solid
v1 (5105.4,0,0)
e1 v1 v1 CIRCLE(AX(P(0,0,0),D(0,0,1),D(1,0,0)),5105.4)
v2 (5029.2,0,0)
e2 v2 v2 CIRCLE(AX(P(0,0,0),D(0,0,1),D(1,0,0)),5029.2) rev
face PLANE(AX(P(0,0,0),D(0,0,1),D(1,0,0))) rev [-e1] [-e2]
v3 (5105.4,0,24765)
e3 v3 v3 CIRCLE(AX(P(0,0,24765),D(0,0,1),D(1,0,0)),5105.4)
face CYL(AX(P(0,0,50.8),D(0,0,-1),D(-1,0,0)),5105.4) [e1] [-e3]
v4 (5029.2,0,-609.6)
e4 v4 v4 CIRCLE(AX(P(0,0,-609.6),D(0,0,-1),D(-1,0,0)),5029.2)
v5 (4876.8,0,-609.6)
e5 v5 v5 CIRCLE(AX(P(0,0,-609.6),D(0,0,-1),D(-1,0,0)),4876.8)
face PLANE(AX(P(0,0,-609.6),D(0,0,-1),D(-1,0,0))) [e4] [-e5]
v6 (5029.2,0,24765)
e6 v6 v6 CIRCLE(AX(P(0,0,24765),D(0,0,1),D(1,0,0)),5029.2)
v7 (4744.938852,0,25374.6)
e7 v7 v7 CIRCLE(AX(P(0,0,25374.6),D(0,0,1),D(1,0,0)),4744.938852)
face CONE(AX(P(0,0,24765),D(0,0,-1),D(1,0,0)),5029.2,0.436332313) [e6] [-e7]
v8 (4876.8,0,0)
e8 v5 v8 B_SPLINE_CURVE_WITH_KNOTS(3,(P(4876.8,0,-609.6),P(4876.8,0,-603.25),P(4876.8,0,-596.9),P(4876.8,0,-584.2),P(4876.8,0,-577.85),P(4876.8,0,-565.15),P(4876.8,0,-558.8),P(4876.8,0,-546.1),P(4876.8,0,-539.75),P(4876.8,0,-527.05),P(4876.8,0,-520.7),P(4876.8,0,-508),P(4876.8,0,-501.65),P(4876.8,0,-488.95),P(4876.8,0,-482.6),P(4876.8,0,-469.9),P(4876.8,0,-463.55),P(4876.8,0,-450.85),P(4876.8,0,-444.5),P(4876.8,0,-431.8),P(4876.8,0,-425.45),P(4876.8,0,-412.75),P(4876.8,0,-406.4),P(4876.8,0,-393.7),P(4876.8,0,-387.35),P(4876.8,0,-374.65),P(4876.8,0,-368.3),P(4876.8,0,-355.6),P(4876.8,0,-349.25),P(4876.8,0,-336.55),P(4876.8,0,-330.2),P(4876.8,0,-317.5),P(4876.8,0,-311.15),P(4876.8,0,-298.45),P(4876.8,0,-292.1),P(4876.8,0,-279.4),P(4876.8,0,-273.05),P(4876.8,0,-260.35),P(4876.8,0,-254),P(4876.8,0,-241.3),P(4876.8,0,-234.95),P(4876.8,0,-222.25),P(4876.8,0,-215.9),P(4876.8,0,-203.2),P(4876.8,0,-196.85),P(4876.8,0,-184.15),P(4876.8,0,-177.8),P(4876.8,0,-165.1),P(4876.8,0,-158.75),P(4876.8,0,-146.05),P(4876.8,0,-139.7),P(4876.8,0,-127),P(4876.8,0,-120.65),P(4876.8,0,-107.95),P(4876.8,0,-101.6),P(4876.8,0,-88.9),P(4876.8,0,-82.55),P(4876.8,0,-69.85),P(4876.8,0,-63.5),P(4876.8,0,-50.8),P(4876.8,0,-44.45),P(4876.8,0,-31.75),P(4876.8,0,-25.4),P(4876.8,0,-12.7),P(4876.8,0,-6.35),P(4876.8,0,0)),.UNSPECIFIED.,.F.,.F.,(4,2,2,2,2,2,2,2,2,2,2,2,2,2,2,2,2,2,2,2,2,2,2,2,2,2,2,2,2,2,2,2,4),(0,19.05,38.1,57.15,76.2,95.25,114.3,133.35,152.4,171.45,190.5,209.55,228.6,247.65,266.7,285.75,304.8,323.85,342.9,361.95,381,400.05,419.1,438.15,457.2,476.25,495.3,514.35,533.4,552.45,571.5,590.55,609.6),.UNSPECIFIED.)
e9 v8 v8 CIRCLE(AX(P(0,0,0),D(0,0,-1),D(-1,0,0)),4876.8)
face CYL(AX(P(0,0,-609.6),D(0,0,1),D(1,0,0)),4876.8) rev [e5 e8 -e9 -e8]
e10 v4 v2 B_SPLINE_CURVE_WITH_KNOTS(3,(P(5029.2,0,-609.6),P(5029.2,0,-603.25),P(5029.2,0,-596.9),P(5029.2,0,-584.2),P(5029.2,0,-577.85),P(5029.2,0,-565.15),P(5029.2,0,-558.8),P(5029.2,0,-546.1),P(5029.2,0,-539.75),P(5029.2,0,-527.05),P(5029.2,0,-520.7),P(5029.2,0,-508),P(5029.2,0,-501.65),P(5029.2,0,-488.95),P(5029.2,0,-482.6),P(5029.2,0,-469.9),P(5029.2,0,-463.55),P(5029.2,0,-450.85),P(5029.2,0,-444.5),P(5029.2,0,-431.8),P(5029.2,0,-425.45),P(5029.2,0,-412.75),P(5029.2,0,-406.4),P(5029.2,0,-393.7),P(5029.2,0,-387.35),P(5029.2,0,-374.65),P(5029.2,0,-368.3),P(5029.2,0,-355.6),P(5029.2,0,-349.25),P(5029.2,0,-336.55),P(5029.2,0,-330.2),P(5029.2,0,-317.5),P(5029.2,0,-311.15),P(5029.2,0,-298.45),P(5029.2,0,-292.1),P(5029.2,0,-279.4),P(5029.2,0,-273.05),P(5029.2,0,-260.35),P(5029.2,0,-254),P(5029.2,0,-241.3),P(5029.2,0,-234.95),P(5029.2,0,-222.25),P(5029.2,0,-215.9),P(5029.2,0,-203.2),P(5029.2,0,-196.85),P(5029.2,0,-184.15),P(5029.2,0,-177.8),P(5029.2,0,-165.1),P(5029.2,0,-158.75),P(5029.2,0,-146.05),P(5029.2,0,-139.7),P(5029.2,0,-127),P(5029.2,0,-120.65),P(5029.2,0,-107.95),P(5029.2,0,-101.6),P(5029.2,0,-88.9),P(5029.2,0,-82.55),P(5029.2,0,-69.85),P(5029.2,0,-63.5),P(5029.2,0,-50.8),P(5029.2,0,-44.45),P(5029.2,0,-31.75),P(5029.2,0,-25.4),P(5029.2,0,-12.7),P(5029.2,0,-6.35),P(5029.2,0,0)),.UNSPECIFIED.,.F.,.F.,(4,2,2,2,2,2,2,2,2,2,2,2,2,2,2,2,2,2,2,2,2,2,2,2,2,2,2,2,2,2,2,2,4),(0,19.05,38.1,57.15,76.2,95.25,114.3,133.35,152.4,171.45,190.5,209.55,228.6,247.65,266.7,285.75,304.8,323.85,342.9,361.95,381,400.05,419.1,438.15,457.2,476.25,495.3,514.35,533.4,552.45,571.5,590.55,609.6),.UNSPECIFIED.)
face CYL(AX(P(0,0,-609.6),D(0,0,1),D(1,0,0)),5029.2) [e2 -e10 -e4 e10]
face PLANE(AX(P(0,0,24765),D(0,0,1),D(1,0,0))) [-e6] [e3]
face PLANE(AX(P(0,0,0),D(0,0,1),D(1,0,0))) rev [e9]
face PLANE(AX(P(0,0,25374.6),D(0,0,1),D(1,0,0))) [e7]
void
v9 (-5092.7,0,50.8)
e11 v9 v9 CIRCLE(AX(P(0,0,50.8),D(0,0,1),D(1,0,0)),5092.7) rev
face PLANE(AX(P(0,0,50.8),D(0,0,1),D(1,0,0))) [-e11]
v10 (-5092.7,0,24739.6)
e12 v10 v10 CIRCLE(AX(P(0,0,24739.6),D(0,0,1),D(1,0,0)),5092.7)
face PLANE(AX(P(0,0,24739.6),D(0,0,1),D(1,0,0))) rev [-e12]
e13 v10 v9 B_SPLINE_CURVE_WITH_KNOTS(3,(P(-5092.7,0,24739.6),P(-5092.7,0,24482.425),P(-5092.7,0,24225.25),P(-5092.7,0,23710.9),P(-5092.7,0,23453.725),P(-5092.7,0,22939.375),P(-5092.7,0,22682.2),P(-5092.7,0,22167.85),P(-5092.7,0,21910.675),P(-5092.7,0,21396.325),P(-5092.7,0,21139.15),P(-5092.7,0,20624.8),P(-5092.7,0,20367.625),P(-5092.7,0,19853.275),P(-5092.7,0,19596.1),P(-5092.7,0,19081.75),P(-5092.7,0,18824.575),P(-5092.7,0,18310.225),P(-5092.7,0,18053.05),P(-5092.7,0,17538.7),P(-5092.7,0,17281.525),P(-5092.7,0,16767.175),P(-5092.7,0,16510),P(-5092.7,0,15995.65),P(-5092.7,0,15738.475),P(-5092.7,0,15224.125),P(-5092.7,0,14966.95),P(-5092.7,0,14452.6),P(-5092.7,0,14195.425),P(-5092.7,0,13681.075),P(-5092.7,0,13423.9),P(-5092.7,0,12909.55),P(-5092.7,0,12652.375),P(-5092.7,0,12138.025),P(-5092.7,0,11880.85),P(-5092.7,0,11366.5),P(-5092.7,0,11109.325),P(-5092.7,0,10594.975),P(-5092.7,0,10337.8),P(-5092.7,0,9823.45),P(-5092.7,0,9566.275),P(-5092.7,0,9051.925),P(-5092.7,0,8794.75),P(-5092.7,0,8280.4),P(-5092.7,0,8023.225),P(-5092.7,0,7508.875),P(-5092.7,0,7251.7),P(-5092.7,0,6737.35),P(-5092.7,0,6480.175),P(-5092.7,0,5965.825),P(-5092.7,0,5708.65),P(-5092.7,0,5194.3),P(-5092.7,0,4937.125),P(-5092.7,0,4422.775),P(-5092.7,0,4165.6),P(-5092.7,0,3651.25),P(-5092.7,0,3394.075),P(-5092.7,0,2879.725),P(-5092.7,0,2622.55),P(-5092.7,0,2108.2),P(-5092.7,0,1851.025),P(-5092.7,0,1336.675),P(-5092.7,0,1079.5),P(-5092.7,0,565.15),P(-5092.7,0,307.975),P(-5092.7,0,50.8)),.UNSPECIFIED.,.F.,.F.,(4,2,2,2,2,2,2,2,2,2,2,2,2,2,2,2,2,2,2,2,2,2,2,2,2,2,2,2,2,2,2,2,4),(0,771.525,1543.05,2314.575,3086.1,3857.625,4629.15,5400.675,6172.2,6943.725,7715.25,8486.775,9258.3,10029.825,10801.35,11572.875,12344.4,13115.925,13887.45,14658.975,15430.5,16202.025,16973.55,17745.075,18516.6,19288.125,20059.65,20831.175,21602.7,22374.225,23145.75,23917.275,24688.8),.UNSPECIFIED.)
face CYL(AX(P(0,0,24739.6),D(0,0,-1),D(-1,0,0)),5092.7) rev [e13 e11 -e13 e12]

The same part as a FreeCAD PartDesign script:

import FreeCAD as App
import Part
import Sketcher
Q = App.Units.Quantity

doc = App.newDocument("Part")
body = doc.addObject("PartDesign::Body", "Body")

sketch1 = body.newObject("Sketcher::SketchObject", "Sketch")
sketch1.AttachmentSupport = (doc.getObject("XY_Plane"), [""])
sketch1.MapMode = "FlatFace"
sketch1.addGeometry(Part.Circle(App.Vector(0, 0, 0), App.Vector(0, 0, 1), 5105), False)
sketch1.addConstraint([
    Sketcher.Constraint("Coincident", 0, 3, -1, 1),
    Sketcher.Constraint("Diameter", 0, Q("402 in")),
])
pad1 = body.newObject("PartDesign::Pad", "Pad")
pad1.Profile = sketch1
pad1.Length = Q("2 in")

sketch2 = body.newObject("Sketcher::SketchObject", "Sketch001")
sketch2.AttachmentSupport = (doc.getObject("XY_Plane"), [""])
sketch2.MapMode = "FlatFace"
sketch2.AttachmentOffset = App.Placement(App.Vector(0, 0, 2 * 25.4), App.Rotation())
sketch2.addGeometry([
    Part.Circle(App.Vector(0, 0, 0), App.Vector(0, 0, 1), 5105),
    Part.Circle(App.Vector(0, 0, 0), App.Vector(0, 0, 1), 5093),
], False)
sketch2.addConstraint([
    Sketcher.Constraint("Coincident", 0, 3, -1, 1),
    Sketcher.Constraint("Coincident", 1, 3, -1, 1),
    Sketcher.Constraint("Diameter", 0, Q("402 in")),
    Sketcher.Constraint("Diameter", 1, Q("401 in")),
])
pad2 = body.newObject("PartDesign::Pad", "Pad001")
pad2.Profile = sketch2
pad2.Length = Q("972 in")

sketch3 = body.newObject("Sketcher::SketchObject", "Sketch002")
sketch3.AttachmentSupport = (doc.getObject("XY_Plane"), [""])
sketch3.MapMode = "FlatFace"
sketch3.AttachmentOffset = App.Placement(App.Vector(0, 0, 974 * 25.4), App.Rotation())
sketch3.addGeometry(Part.Circle(App.Vector(0, 0, 0), App.Vector(0, 0, 1), 5105), False)
sketch3.addConstraint([
    Sketcher.Constraint("Coincident", 0, 3, -1, 1),
    Sketcher.Constraint("Diameter", 0, Q("402 in")),
])
pad3 = body.newObject("PartDesign::Pad", "Pad002")
pad3.Profile = sketch3
pad3.Length = Q("1 in")

sketch4 = body.newObject("Sketcher::SketchObject", "Sketch003")
sketch4.AttachmentSupport = (doc.getObject("XY_Plane"), [""])
sketch4.MapMode = "FlatFace"
sketch4.AttachmentOffset = App.Placement(App.Vector(0, 0, 975 * 25.4), App.Rotation())
sketch4.addGeometry(Part.Circle(App.Vector(0, 0, 0), App.Vector(0, 0, 1), 5029), False)
sketch4.addConstraint([
    Sketcher.Constraint("Coincident", 0, 3, -1, 1),
    Sketcher.Constraint("Diameter", 0, Q("396 in")),
])
pad4 = body.newObject("PartDesign::Pad", "Pad003")
pad4.Profile = sketch4
pad4.Length = Q("24 in")
pad4.TaperAngle = -25

sketch5 = body.newObject("Sketcher::SketchObject", "Sketch004")
sketch5.AttachmentSupport = (doc.getObject("XY_Plane"), [""])
sketch5.MapMode = "FlatFace"
sketch5.addGeometry([
    Part.Circle(App.Vector(0, 0, 0), App.Vector(0, 0, 1), 5029),
    Part.Circle(App.Vector(0, 0, 0), App.Vector(0, 0, 1), 4877),
], False)
sketch5.addConstraint([
    Sketcher.Constraint("Coincident", 0, 3, -1, 1),
    Sketcher.Constraint("Coincident", 1, 3, -1, 1),
    Sketcher.Constraint("Diameter", 0, Q("396 in")),
    Sketcher.Constraint("Diameter", 1, Q("384 in")),
])
pad5 = body.newObject("PartDesign::Pad", "Pad004")
pad5.Profile = sketch5
pad5.Length = Q("24 in")
pad5.Reversed = True

doc.recompute()
